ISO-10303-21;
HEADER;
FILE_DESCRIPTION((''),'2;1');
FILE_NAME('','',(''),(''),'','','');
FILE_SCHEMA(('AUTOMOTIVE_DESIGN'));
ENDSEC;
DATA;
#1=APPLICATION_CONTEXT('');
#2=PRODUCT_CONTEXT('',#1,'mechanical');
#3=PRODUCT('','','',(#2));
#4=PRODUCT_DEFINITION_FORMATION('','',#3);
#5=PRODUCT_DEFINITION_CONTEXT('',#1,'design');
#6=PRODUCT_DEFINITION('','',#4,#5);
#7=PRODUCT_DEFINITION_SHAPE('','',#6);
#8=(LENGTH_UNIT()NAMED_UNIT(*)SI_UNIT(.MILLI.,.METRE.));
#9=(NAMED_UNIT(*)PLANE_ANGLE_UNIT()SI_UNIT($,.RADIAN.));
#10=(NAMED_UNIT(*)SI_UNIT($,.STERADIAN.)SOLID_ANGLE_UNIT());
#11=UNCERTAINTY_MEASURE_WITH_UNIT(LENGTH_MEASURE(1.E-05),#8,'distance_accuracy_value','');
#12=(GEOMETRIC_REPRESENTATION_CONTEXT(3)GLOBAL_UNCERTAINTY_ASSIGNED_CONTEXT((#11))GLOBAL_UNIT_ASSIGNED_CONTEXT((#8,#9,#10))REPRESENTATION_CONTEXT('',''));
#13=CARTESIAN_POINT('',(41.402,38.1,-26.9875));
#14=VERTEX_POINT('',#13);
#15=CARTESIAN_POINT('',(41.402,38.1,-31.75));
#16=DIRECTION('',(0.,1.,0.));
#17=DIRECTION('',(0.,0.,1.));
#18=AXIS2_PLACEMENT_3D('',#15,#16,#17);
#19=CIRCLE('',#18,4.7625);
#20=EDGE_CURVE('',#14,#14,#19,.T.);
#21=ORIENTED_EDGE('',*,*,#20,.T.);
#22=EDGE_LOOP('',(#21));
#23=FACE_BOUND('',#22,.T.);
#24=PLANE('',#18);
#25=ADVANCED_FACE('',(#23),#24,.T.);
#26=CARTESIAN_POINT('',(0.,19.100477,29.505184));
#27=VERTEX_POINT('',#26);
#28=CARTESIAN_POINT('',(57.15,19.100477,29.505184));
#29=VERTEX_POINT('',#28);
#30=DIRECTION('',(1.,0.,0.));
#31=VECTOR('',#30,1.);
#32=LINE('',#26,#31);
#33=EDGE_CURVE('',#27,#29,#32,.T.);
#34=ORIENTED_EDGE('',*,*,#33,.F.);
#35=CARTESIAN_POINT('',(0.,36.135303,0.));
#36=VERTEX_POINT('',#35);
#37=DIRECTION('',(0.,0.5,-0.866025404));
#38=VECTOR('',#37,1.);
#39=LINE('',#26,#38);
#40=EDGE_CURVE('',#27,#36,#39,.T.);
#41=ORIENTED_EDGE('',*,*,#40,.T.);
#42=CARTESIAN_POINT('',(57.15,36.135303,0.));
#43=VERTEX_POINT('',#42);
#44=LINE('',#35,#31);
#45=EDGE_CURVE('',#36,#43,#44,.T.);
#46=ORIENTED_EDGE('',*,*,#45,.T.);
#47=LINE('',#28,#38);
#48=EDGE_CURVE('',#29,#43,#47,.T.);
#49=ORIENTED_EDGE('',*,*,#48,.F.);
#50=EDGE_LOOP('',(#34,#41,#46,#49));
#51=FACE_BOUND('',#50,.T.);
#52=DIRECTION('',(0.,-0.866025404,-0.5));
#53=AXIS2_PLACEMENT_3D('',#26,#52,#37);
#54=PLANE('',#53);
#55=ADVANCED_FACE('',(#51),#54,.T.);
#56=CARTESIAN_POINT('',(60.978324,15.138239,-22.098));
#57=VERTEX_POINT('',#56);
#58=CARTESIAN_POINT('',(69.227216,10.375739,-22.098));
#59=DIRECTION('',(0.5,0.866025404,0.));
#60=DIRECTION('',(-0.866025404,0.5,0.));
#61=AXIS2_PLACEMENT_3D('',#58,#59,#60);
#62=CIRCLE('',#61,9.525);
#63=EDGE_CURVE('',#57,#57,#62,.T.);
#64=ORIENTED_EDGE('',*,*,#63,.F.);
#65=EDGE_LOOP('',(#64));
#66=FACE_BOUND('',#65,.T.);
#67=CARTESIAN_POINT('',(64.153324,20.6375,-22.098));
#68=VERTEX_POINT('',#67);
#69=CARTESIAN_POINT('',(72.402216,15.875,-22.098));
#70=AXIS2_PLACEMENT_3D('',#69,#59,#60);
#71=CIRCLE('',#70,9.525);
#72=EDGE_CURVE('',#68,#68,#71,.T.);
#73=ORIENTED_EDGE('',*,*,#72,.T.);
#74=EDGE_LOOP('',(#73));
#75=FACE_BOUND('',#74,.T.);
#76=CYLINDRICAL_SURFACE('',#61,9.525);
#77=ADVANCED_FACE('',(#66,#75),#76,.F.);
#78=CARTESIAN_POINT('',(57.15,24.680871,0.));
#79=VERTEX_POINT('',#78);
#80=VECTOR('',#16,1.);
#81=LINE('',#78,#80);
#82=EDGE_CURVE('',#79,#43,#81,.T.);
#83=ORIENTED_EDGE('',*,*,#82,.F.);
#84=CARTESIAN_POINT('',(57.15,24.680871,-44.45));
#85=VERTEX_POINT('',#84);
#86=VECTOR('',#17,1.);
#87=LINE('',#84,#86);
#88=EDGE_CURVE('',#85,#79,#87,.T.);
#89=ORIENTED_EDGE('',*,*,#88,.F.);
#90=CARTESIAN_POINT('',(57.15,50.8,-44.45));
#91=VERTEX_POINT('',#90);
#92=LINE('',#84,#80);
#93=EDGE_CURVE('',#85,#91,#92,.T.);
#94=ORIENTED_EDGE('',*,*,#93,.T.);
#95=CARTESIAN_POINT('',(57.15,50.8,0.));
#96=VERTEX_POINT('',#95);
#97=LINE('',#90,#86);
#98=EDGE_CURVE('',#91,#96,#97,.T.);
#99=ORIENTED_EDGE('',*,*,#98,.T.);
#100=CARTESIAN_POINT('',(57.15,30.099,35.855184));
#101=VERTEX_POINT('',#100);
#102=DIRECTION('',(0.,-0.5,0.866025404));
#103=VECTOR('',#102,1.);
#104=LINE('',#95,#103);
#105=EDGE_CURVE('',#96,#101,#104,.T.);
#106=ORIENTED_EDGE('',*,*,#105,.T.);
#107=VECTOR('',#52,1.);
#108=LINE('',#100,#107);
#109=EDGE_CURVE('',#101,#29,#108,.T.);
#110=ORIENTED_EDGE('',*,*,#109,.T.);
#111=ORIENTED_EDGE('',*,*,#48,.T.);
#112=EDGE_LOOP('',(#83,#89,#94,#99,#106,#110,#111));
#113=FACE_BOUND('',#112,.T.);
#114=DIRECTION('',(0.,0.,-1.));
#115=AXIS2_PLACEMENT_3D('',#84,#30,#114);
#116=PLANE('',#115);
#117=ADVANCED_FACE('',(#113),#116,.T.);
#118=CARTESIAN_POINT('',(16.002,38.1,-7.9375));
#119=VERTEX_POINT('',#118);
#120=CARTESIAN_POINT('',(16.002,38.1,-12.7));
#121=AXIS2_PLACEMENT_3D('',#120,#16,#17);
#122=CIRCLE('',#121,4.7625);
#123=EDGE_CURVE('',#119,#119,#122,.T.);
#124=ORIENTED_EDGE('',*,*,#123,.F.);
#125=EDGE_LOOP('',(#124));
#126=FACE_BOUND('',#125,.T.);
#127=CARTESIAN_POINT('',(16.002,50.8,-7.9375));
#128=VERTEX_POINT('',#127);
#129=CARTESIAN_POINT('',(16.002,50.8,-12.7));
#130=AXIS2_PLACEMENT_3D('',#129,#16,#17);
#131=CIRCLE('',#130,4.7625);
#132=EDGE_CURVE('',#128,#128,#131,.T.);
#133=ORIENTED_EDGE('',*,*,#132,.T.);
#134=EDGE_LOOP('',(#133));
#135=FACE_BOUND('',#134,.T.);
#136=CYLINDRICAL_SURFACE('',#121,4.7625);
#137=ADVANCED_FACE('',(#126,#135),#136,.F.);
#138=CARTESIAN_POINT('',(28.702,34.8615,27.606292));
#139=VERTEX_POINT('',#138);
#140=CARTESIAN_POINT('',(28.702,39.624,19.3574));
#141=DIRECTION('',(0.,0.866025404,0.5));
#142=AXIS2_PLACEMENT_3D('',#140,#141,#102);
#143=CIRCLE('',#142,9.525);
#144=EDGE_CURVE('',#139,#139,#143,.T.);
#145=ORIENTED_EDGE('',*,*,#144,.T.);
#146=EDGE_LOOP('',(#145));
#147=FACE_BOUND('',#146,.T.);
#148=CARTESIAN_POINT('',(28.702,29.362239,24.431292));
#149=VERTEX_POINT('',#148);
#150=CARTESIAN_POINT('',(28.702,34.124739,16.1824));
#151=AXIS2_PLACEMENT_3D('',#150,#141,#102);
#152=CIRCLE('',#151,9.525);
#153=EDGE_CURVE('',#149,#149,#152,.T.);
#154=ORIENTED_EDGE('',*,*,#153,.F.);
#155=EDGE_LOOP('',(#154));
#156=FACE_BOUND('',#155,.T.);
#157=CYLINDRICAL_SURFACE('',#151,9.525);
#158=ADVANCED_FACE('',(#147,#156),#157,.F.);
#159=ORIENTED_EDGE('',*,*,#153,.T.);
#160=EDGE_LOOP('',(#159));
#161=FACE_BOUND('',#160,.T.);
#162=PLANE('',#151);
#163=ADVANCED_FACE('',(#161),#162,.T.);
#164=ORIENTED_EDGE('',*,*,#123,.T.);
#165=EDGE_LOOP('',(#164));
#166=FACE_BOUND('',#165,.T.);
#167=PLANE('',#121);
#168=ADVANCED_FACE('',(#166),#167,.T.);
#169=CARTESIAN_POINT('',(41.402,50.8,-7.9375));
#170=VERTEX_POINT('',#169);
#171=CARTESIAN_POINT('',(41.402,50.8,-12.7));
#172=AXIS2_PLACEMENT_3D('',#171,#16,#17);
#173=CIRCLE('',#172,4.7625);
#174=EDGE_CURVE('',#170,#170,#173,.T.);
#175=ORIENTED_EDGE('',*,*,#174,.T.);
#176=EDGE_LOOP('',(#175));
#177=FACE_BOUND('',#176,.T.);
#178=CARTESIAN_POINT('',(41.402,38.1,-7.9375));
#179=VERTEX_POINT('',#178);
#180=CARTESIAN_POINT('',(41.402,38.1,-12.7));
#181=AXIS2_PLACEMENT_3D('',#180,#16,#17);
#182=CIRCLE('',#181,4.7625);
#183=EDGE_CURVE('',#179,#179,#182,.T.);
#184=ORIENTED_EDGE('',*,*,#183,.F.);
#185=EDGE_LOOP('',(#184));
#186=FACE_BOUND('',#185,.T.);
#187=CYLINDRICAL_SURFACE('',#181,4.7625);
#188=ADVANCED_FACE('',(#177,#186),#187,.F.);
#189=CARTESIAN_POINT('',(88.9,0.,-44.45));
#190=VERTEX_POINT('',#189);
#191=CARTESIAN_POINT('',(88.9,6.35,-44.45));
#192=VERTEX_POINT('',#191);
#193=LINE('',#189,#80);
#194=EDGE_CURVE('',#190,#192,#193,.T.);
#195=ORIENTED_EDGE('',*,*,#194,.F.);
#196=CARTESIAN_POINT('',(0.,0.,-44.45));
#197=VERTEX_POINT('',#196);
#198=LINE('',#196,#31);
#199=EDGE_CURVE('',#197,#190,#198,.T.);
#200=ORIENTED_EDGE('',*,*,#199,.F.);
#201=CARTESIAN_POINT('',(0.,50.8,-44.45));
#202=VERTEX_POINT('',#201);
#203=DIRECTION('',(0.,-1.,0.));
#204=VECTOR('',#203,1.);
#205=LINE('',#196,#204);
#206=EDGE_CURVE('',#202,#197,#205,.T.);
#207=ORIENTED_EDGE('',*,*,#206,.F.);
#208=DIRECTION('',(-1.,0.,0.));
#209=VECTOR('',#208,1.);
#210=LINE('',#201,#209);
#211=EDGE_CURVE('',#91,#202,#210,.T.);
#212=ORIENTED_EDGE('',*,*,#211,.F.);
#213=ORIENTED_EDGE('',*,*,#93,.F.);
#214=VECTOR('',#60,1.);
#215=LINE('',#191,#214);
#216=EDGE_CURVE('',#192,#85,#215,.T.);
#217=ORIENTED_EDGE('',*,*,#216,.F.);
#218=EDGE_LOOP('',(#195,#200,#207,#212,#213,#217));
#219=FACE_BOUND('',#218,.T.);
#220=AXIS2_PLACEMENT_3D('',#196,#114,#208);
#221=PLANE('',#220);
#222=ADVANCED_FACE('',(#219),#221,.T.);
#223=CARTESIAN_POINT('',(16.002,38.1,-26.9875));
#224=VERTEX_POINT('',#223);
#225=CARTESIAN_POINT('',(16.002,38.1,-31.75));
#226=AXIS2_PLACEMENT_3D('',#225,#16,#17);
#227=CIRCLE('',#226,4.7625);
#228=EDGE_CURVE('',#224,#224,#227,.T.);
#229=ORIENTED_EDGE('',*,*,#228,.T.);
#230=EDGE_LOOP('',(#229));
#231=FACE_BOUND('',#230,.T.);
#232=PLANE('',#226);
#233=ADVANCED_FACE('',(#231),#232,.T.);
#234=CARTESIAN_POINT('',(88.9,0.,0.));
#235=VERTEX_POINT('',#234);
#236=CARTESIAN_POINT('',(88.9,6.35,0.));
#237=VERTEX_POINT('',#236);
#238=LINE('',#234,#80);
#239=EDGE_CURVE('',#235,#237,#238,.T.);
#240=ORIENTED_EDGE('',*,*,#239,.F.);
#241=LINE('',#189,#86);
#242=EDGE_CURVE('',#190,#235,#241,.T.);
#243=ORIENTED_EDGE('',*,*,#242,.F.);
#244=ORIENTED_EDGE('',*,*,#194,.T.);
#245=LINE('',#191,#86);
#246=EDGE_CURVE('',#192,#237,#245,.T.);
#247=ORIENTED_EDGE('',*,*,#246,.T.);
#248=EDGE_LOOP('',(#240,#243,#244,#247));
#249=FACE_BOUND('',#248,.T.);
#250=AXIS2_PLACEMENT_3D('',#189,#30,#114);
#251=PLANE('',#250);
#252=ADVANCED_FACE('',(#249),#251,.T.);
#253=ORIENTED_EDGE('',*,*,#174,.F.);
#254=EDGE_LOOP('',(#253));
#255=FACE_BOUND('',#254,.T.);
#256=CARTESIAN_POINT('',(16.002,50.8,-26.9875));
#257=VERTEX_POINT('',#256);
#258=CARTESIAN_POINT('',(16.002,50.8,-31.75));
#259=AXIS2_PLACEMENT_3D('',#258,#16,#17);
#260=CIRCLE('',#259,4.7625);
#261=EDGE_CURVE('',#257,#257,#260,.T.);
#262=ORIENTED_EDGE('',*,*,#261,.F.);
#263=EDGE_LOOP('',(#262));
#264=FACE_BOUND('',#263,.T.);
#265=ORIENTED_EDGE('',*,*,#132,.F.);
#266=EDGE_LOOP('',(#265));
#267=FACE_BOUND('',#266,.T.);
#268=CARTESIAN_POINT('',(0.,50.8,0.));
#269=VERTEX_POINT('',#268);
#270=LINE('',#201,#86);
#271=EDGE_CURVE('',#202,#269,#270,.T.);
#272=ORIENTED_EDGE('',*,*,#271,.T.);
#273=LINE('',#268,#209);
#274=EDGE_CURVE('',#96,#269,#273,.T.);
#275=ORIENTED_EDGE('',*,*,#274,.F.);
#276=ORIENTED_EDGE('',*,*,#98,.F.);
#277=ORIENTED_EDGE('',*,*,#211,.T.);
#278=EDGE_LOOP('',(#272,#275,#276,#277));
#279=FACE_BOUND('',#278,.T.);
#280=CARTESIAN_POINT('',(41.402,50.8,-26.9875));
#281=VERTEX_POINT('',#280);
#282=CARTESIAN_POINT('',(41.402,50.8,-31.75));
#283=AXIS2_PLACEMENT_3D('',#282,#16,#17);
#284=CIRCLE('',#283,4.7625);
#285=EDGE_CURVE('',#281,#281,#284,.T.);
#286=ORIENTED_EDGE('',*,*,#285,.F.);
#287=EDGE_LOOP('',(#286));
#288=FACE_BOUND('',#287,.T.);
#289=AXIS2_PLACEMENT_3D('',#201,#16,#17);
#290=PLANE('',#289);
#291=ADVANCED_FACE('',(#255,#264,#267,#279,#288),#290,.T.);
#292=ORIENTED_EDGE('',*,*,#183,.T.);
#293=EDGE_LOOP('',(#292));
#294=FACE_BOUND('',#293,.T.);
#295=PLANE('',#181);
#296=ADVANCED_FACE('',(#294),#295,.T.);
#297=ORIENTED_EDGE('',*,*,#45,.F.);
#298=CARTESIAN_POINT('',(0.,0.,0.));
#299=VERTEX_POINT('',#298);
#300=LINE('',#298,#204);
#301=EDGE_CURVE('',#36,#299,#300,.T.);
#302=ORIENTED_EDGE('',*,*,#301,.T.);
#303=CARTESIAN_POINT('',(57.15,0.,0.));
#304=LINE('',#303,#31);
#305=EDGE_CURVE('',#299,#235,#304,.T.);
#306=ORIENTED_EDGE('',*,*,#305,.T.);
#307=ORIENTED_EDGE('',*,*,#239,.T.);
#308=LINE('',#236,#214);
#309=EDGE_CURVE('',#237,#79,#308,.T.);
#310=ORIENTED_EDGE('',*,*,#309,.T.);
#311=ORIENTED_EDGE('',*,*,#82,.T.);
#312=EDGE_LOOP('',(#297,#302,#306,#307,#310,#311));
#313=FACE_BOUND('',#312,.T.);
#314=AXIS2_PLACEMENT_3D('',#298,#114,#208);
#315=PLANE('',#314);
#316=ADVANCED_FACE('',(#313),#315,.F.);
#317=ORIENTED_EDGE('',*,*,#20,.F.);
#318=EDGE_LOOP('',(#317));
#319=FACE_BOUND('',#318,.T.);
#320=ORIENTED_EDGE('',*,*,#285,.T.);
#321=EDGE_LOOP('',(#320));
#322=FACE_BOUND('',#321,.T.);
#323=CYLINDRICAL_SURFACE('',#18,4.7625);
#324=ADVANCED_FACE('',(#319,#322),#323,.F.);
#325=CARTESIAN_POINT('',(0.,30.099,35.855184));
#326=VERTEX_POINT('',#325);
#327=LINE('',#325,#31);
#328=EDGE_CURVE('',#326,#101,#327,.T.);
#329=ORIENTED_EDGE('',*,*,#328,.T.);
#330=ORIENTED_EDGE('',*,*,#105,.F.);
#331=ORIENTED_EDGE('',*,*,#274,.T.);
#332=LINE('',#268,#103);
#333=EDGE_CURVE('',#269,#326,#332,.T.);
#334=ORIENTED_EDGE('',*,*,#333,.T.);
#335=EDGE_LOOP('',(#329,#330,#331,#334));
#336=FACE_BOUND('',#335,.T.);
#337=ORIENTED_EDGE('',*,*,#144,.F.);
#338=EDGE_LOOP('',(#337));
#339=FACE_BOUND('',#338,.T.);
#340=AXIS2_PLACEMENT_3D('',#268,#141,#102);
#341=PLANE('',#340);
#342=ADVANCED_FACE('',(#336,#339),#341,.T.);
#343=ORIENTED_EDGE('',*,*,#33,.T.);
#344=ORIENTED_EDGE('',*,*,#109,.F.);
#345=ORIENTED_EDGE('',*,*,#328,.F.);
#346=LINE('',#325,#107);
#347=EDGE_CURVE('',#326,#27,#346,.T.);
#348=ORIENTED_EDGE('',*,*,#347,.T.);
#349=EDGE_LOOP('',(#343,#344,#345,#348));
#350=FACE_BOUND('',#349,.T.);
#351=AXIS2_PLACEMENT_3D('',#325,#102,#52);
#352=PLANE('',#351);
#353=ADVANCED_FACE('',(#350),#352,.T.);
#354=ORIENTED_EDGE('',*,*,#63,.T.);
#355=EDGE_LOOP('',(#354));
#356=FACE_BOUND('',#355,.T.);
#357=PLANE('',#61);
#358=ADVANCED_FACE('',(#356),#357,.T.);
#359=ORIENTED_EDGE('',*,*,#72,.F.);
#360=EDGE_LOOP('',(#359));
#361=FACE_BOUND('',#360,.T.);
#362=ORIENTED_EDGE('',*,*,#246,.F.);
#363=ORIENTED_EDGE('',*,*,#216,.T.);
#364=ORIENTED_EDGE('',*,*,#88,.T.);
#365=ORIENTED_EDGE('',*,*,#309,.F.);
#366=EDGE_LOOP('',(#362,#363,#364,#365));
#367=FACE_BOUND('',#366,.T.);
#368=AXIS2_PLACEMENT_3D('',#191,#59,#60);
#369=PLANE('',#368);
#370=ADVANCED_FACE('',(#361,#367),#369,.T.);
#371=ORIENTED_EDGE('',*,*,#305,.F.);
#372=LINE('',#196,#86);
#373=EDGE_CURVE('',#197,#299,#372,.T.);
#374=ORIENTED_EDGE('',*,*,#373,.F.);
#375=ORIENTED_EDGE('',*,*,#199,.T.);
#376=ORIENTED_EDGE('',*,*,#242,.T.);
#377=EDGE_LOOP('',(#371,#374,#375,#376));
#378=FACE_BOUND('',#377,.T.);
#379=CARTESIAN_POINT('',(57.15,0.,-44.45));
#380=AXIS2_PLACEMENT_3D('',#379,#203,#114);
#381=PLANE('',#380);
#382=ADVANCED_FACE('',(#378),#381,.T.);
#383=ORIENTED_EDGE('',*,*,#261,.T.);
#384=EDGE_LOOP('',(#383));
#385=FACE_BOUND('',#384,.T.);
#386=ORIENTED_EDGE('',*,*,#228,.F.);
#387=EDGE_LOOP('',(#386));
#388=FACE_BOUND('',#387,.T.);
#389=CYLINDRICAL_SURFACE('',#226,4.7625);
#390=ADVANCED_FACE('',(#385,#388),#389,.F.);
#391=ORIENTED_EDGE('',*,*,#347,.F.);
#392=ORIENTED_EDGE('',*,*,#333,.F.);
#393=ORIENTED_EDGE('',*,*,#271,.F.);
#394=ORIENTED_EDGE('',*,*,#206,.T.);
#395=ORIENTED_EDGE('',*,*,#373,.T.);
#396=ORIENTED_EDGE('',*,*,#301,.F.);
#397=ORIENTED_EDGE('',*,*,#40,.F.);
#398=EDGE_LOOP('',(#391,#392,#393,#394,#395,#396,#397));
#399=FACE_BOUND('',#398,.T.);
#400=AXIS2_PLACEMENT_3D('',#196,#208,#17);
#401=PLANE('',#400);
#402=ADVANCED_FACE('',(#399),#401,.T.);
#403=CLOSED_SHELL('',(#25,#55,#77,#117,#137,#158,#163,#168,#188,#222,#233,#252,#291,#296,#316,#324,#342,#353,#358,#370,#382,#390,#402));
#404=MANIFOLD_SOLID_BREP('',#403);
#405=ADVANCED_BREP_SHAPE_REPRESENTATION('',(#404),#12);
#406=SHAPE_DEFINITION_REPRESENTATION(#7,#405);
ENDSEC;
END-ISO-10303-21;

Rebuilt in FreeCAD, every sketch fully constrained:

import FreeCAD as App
import Part
import Sketcher
Q = App.Units.Quantity

doc = App.newDocument("Part")
body = doc.addObject("PartDesign::Body", "Body")

sketch1 = body.newObject("Sketcher::SketchObject", "Sketch")
sketch1.AttachmentSupport = (doc.getObject("XY_Plane"), [""])
sketch1.MapMode = "FlatFace"
sketch1.addGeometry(Part.LineSegment(App.Vector(89, 0, 0), App.Vector(89, 6, 0)), False)
sketch1.addGeometry(Part.LineSegment(App.Vector(89, 6, 0), App.Vector(57, 25, 0)), False)
sketch1.addGeometry(Part.LineSegment(App.Vector(57, 25, 0), App.Vector(57, 51, 0)), False)
sketch1.addGeometry(Part.LineSegment(App.Vector(57, 51, 0), App.Vector(0, 51, 0)), False)
sketch1.addGeometry(Part.LineSegment(App.Vector(0, 51, 0), App.Vector(0, 0, 0)), False)
sketch1.addGeometry(Part.LineSegment(App.Vector(0, 0, 0), App.Vector(89, 0, 0)), False)
sketch1.addConstraint(Sketcher.Constraint("Coincident", 0, 2, 1, 1))
sketch1.addConstraint(Sketcher.Constraint("Coincident", 1, 2, 2, 1))
sketch1.addConstraint(Sketcher.Constraint("Coincident", 2, 2, 3, 1))
sketch1.addConstraint(Sketcher.Constraint("Coincident", 3, 2, 4, 1))
sketch1.addConstraint(Sketcher.Constraint("Coincident", 4, 2, 5, 1))
sketch1.addConstraint(Sketcher.Constraint("Coincident", 5, 2, 0, 1))
sketch1.addConstraint(Sketcher.Constraint("Vertical", 0))
sketch1.addConstraint(Sketcher.Constraint("Vertical", 2))
sketch1.addConstraint(Sketcher.Constraint("Horizontal", 3))
sketch1.addConstraint(Sketcher.Constraint("Vertical", 4))
sketch1.addConstraint(Sketcher.Constraint("Horizontal", 5))
sketch1.addConstraint(Sketcher.Constraint("Coincident", 4, 2, -1, 1))
sketch1.addConstraint(Sketcher.Constraint("DistanceY", 4, 2, 4, 1, Q("2 in")))
sketch1.addConstraint(Sketcher.Constraint("DistanceX", 5, 1, 5, 2, Q("3.5 in")))
sketch1.addConstraint(Sketcher.Constraint("Angle", 1, Q("150 deg")))
sketch1.addConstraint(Sketcher.Constraint("DistanceX", 3, 2, 3, 1, Q("2.25 in")))
sketch1.addConstraint(Sketcher.Constraint("DistanceY", 0, 1, 0, 2, Q("0.25 in")))
pad1 = body.newObject("PartDesign::Pad", "Pad")
pad1.Profile = sketch1
pad1.Length = Q("1.75 in")
pad1.Reversed = True

sketch2 = body.newObject("Sketcher::SketchObject", "Sketch001")
sketch2.AttachmentSupport = (doc.getObject("XZ_Plane"), [""])
sketch2.MapMode = "FlatFace"
sketch2.AttachmentOffset = App.Placement(App.Vector(0, 0, -2 * 25.4), App.Rotation())
sketch2.addGeometry(Part.Circle(App.Vector(16, -12.7, 0), App.Vector(0, 0, 1), 4.8), False)
sketch2.addGeometry(Part.Circle(App.Vector(41.4, -12.7, 0), App.Vector(0, 0, 1), 4.8), False)
sketch2.addGeometry(Part.Circle(App.Vector(41.4, -31.8, 0), App.Vector(0, 0, 1), 4.8), False)
sketch2.addGeometry(Part.Circle(App.Vector(16, -31.8, 0), App.Vector(0, 0, 1), 4.8), False)
sketch2.addConstraint(Sketcher.Constraint("Equal", 0, 1))
sketch2.addConstraint(Sketcher.Constraint("Equal", 1, 2))
sketch2.addConstraint(Sketcher.Constraint("Equal", 2, 3))
sketch2.addConstraint(Sketcher.Constraint("Horizontal", 0, 3, 1, 3))
sketch2.addConstraint(Sketcher.Constraint("Horizontal", 2, 3, 3, 3))
sketch2.addConstraint(Sketcher.Constraint("Vertical", 1, 3, 2, 3))
sketch2.addConstraint(Sketcher.Constraint("Vertical", 0, 3, 3, 3))
sketch2.addConstraint(Sketcher.Constraint("Diameter", 0, Q("0.375 in")))
sketch2.addConstraint(Sketcher.Constraint("DistanceX", 0, 3, 1, 3, Q("1 in")))
sketch2.addConstraint(Sketcher.Constraint("DistanceY", 0, 3, -1, 1, Q("0.5 in")))
sketch2.addConstraint(Sketcher.Constraint("DistanceX", -1, 1, 0, 3, Q("0.63 in")))
sketch2.addConstraint(Sketcher.Constraint("DistanceY", 2, 3, -1, 1, Q("1.25 in")))
pocket1 = body.newObject("PartDesign::Pocket", "Pocket")
pocket1.Profile = sketch2
pocket1.Length = Q("0.5 in")
pocket1.Reversed = True

sketch3 = body.newObject("Sketcher::SketchObject", "Sketch002")
sketch3.Placement = App.Placement(App.Vector(24.974631, 43.257329, 0), App.Rotation(App.Vector(0.866025404, -0.5, 0), App.Vector(0, 0, -1), App.Vector(0.5, 0.866025404, 0), "ZXY"))
sketch3.addGeometry(Part.Circle(App.Vector(55, 22, 0), App.Vector(0, 0, 1), 10), False)
sketch3.addConstraint(Sketcher.Constraint("Diameter", 0, Q("0.75 in")))
sketch3.addConstraint(Sketcher.Constraint("DistanceY", -1, 1, 0, 3, Q("0.87 in")))
sketch3.addConstraint(Sketcher.Constraint("DistanceX", -1, 1, 0, 3, Q("54.764658 mm")))
pocket2 = body.newObject("PartDesign::Pocket", "Pocket001")
pocket2.Profile = sketch3
pocket2.Length = Q("0.25 in")

sketch4 = body.newObject("Sketcher::SketchObject", "Sketch003")
sketch4.AttachmentSupport = (doc.getObject("YZ_Plane"), [""])
sketch4.MapMode = "FlatFace"
sketch4.AttachmentOffset = App.Placement(App.Vector(0, 0, 2.25 * 25.4), App.Rotation())
sketch4.addGeometry(Part.LineSegment(App.Vector(51, 0, 0), App.Vector(30, 36, 0)), False)
sketch4.addGeometry(Part.LineSegment(App.Vector(30, 36, 0), App.Vector(19, 30, 0)), False)
sketch4.addGeometry(Part.LineSegment(App.Vector(19, 30, 0), App.Vector(36, 0, 0)), False)
sketch4.addGeometry(Part.LineSegment(App.Vector(36, 0, 0), App.Vector(51, 0, 0)), False)
sketch4.addConstraint(Sketcher.Constraint("Coincident", 0, 2, 1, 1))
sketch4.addConstraint(Sketcher.Constraint("Coincident", 1, 2, 2, 1))
sketch4.addConstraint(Sketcher.Constraint("Coincident", 2, 2, 3, 1))
sketch4.addConstraint(Sketcher.Constraint("Coincident", 3, 2, 0, 1))
sketch4.addConstraint(Sketcher.Constraint("Horizontal", 3))
sketch4.addConstraint(Sketcher.Constraint("PointOnObject", 2, 2, -1))
sketch4.addConstraint(Sketcher.Constraint("Perpendicular", 0, 1))
sketch4.addConstraint(Sketcher.Constraint("Perpendicular", 1, 2))
sketch4.addConstraint(Sketcher.Constraint("DistanceX", -1, 1, 3, 2, Q("2 in")))
sketch4.addConstraint(Sketcher.Constraint("Angle", 0, Q("120 deg")))
sketch4.addConstraint(Sketcher.Constraint("Distance", 1, Q("0.5 in")))
sketch4.addConstraint(Sketcher.Constraint("Distance", 0, Q("1.63 in")))
pad2 = body.newObject("PartDesign::Pad", "Pad001")
pad2.Profile = sketch4
pad2.Length = Q("2.25 in")
pad2.Reversed = True

sketch5 = body.newObject("Sketcher::SketchObject", "Sketch004")
sketch5.Placement = App.Placement(App.Vector(0, 38.1, 21.997045), App.Rotation(App.Vector(1, 0, 0), App.Vector(0, 0.5, -0.866025404), App.Vector(0, 0.866025404, 0.5), "ZXY"))
sketch5.addGeometry(Part.Circle(App.Vector(29, 3, 0), App.Vector(0, 0, 1), 10), False)
sketch5.addConstraint(Sketcher.Constraint("Diameter", 0, Q("0.75 in")))
sketch5.addConstraint(Sketcher.Constraint("DistanceX", -1, 1, 0, 3, Q("1.13 in")))
sketch5.addConstraint(Sketcher.Constraint("DistanceY", -1, 1, 0, 3, Q("0.12 in")))
pocket3 = body.newObject("PartDesign::Pocket", "Pocket002")
pocket3.Profile = sketch5
pocket3.Length = Q("0.25 in")

doc.recompute()
